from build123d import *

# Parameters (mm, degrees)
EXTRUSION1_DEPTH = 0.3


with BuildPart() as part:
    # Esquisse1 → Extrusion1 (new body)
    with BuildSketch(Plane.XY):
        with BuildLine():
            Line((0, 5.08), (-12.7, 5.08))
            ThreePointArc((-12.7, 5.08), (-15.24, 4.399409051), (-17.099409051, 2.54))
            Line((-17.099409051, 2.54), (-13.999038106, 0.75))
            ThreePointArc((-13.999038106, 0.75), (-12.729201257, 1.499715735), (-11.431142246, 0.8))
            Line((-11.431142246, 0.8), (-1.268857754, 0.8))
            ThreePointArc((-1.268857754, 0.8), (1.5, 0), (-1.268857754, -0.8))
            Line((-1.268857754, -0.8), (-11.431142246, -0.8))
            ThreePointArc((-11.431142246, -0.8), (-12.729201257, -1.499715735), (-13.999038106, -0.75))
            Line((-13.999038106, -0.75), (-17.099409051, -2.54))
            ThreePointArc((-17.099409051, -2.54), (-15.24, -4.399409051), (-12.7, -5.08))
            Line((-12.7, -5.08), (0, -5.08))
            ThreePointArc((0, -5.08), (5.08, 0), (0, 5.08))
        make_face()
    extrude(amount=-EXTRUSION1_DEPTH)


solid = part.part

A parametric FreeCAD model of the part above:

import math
import FreeCAD as App
import Part
import Sketcher

V = App.Vector
Q = App.Units.Quantity

doc = App.newDocument("Part")
params = doc.addObject("Spreadsheet::Sheet", "Params")
for row, (alias, value) in enumerate([
    ("sketch1_radius", "1.5 mm"),
    ("sketch1_radius2", "5.08 mm"),
    ("sketch1_width", "12.7 mm"),
    ("pad1_length", "0.3 mm"),
], start=1):
    params.set(f"A{row}", alias)
    params.set(f"B{row}", "=" + value)
    params.setAlias(f"B{row}", alias)

body = doc.addObject("PartDesign::Body", "Body")

# Sketch on XY plane
sketch1 = body.newObject("Sketcher::SketchObject", "Sketch")
sketch1.AttachmentSupport = (doc.getObject("XY_Plane"), [""])
sketch1.MapMode = "FlatFace"
sketch1.addGeometry([
    Part.LineSegment(V(0, 5.1, 0), V(-12.7, 5.1, 0)),  # 0
    Part.ArcOfCircle(Part.Circle(V(-12.7, 0, 0), V(0, 0, 1), 5.1), math.radians(90), math.radians(150)),  # 1
    Part.LineSegment(V(-17.1, 2.5, 0), V(-14, 0.8, 0)),  # 2
    Part.ArcOfCircle(Part.Circle(V(-12.7, 0, 0), V(0, 0, 1), 1.5), math.radians(32), math.radians(150)),  # 3
    Part.LineSegment(V(-11.4, 0.8, 0), V(-1.3, 0.8, 0)),  # 4
    Part.ArcOfCircle(Part.Circle(V(0, 0, 0), V(0, 0, 1), 1.5), math.radians(-148), math.radians(148)),  # 5
    Part.LineSegment(V(-1.3, -0.8, 0), V(-11.4, -0.8, 0)),  # 6
    Part.ArcOfCircle(Part.Circle(V(-12.7, 0, 0), V(0, 0, 1), 1.5), math.radians(-150), math.radians(-32)),  # 7
    Part.LineSegment(V(-14, -0.8, 0), V(-17.1, -2.5, 0)),  # 8
    Part.ArcOfCircle(Part.Circle(V(-12.7, 0, 0), V(0, 0, 1), 5.1), math.radians(-150), math.radians(-90)),  # 9
    Part.LineSegment(V(-12.7, -5.1, 0), V(0, -5.1, 0)),  # 10
    Part.ArcOfCircle(Part.Circle(V(0, 0, 0), V(0, 0, 1), 5.1), math.radians(-90), math.radians(90)),  # 11
], False)
sketch1.addConstraint([
    Sketcher.Constraint("Tangent", 0, 2, 1, 1),
    Sketcher.Constraint("Coincident", 1, 2, 2, 1),
    Sketcher.Constraint("Coincident", 2, 2, 3, 2),
    Sketcher.Constraint("Coincident", 3, 1, 4, 1),
    Sketcher.Constraint("Coincident", 4, 2, 5, 2),
    Sketcher.Constraint("Coincident", 5, 1, 6, 1),
    Sketcher.Constraint("Coincident", 6, 2, 7, 2),
    Sketcher.Constraint("Coincident", 7, 1, 8, 1),
    Sketcher.Constraint("Coincident", 8, 2, 9, 1),
    Sketcher.Constraint("Tangent", 9, 2, 10, 1),
    Sketcher.Constraint("Tangent", 10, 2, 11, 1),
    Sketcher.Constraint("Tangent", 11, 2, 0, 1),
    Sketcher.Constraint("Horizontal", 0),
    Sketcher.Constraint("Horizontal", 4),
    Sketcher.Constraint("Horizontal", 6),
    Sketcher.Constraint("Horizontal", 10),
    Sketcher.Constraint("Coincident", 5, 3, -1, 1),
    Sketcher.Constraint("Coincident", 11, 3, -1, 1),
    Sketcher.Constraint("Coincident", 3, 3, 1, 3),
    Sketcher.Constraint("Coincident", 7, 3, 1, 3),
    Sketcher.Constraint("Coincident", 9, 3, 1, 3),
    Sketcher.Constraint("Equal", 3, 5),
    Sketcher.Constraint("Equal", 5, 7),
    Sketcher.Constraint("Equal", 1, 9),
    Sketcher.Constraint("Vertical", 4, 2, 5, 1),
    Sketcher.Constraint("Vertical", 2, 2, 7, 1),
    Sketcher.Constraint("Vertical", 1, 2, 8, 2),
    Sketcher.Constraint("Radius", 3, Q("1.5 mm")),
    Sketcher.Constraint("Angle", 2, Q("-30 deg")),
    Sketcher.Constraint("Radius", 1, Q("5.08 mm")),
    Sketcher.Constraint("DistanceX", 0, 2, 0, 1, Q("12.7 mm")),
    Sketcher.Constraint("DistanceY", -1, 1, 3, 1, Q("0.8 mm")),
    Sketcher.Constraint("DistanceY", 7, 1, 2, 2, Q("1.5 mm")),
])
sketch1.setExpression("Constraints[27]", "Params.sketch1_radius")
sketch1.setExpression("Constraints[29]", "Params.sketch1_radius2")
sketch1.setExpression("Constraints[30]", "Params.sketch1_width")
pad1 = body.newObject("PartDesign::Pad", "Pad")
pad1.Profile = sketch1
pad1.setExpression("Length", "Params.pad1_length")
pad1.Reversed = True

doc.recompute()
